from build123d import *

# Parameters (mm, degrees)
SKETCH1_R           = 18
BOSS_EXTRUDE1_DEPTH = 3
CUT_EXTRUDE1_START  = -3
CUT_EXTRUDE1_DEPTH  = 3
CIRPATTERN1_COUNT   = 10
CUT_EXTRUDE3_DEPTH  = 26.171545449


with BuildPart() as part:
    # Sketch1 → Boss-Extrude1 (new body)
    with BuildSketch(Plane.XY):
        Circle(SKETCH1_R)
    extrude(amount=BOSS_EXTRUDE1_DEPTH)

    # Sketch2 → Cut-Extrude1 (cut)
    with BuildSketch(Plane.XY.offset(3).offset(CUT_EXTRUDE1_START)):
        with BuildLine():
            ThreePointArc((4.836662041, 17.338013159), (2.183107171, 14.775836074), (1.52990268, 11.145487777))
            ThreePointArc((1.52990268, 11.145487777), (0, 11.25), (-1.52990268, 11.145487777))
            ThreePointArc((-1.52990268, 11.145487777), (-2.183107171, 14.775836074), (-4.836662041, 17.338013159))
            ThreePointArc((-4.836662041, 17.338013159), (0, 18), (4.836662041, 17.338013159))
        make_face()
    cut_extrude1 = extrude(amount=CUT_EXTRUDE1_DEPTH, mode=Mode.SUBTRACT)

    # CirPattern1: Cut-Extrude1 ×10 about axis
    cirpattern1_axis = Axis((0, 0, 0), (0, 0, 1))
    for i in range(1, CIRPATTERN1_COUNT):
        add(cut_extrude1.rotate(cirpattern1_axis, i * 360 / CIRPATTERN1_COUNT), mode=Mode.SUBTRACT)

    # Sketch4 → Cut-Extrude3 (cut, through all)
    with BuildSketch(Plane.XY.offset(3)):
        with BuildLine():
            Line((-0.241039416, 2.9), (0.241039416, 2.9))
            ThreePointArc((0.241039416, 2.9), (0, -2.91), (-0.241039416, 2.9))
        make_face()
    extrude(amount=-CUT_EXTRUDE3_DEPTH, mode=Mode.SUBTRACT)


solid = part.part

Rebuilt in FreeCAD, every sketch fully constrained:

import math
import FreeCAD as App
import Part
import Sketcher

doc = App.newDocument("Part")
body = doc.addObject("PartDesign::Body", "Body")

# Sketch on XY plane
sketch1 = body.newObject("Sketcher::SketchObject", "Sketch")
sketch1.AttachmentSupport = (doc.getObject("XY_Plane"), [""])
sketch1.MapMode = "FlatFace"
sketch1.addGeometry(Part.Circle(App.Vector(0, 0, 0), App.Vector(0, 0, 1), 18), False)
sketch1.addConstraint([
    Sketcher.Constraint("Coincident", 0, 3, -1, 1),
    Sketcher.Constraint("Diameter", 0, 36.0),
])
pad1 = body.newObject("PartDesign::Pad", "Pad")
pad1.Profile = sketch1
pad1.Length = 3

# Sketch on XY plane
sketch2 = body.newObject("Sketcher::SketchObject", "Sketch001")
sketch2.AttachmentSupport = (doc.getObject("XY_Plane"), [""])
sketch2.MapMode = "FlatFace"
sketch2.addGeometry([
    Part.ArcOfCircle(Part.Circle(App.Vector(7.5, 11.9, 0), App.Vector(0, 0, 1), 6), math.radians(116), math.radians(188)),
    Part.ArcOfCircle(Part.Circle(App.Vector(0, 0, 0), App.Vector(0, 0, 1), 18), math.radians(74), math.radians(106)),
    Part.ArcOfCircle(Part.Circle(App.Vector(-7.5, 11.9, 0), App.Vector(0, 0, 1), 6), math.radians(-8), math.radians(64)),
    Part.ArcOfCircle(Part.Circle(App.Vector(0, 0, 0), App.Vector(0, 0, 1), 11.2), math.radians(82.18), math.radians(97.82)),
], False)
sketch2.addConstraint([
    Sketcher.Constraint("Coincident", 0, 1, 1, 1),
    Sketcher.Constraint("Coincident", 1, 2, 2, 2),
    Sketcher.Constraint("Coincident", 2, 1, 3, 2),
    Sketcher.Constraint("Coincident", 3, 1, 0, 2),
    Sketcher.Constraint("Coincident", 1, 3, -1, 1),
    Sketcher.Constraint("Coincident", 3, 3, -1, 1),
    Sketcher.Constraint("Equal", 0, 2),
    Sketcher.Constraint("Symmetric", 0, 3, 2, 3, -2),
    Sketcher.Constraint("Radius", 0, 6.0),
    Sketcher.Constraint("Radius", 1, 18.0),
    Sketcher.Constraint("Radius", 3, 11.25),
    Sketcher.Constraint("DistanceY", 0, 3, 0, 1, 5.38842),
    Sketcher.Constraint("DistanceX", 2, 3, 0, 1, 12.312439),
])
pocket1 = body.newObject("PartDesign::Pocket", "Pocket")
pocket1.Profile = sketch2
pocket1.Length = 3
pocket1.Reversed = True
doc.recompute()

polarpattern = body.newObject("PartDesign::PolarPattern", "PolarPattern")
polarpattern.Originals = [pocket1]
polarpattern.Axis = (doc.getObject("Z_Axis"), [""])
polarpattern.Angle = 360
polarpattern.Occurrences = 10
body.Tip = polarpattern

# Sketch on XY plane
sketch3 = body.newObject("Sketcher::SketchObject", "Sketch002")
sketch3.AttachmentSupport = (doc.getObject("XY_Plane"), [""])
sketch3.MapMode = "FlatFace"
sketch3.AttachmentOffset = App.Placement(App.Vector(0, 0, 3), App.Rotation())
sketch3.addGeometry([
    Part.LineSegment(App.Vector(0.24, 2.9, 0), App.Vector(-0.24, 2.9, 0)),
    Part.ArcOfCircle(Part.Circle(App.Vector(0, 0, 0), App.Vector(0, 0, 1), 2.91), math.radians(95), math.radians(445)),
], False)
sketch3.addConstraint([
    Sketcher.Constraint("Coincident", 0, 1, 1, 2),
    Sketcher.Constraint("Coincident", 1, 1, 0, 2),
    Sketcher.Constraint("Horizontal", 0),
    Sketcher.Constraint("Coincident", 1, 3, -1, 1),
    Sketcher.Constraint("Radius", 1, 2.91),
    Sketcher.Constraint("DistanceY", -1, 1, 0, 1, 2.9),
])
pocket2 = body.newObject("PartDesign::Pocket", "Pocket001")
pocket2.Profile = sketch3
pocket2.Type = "ThroughAll"

doc.recompute()
